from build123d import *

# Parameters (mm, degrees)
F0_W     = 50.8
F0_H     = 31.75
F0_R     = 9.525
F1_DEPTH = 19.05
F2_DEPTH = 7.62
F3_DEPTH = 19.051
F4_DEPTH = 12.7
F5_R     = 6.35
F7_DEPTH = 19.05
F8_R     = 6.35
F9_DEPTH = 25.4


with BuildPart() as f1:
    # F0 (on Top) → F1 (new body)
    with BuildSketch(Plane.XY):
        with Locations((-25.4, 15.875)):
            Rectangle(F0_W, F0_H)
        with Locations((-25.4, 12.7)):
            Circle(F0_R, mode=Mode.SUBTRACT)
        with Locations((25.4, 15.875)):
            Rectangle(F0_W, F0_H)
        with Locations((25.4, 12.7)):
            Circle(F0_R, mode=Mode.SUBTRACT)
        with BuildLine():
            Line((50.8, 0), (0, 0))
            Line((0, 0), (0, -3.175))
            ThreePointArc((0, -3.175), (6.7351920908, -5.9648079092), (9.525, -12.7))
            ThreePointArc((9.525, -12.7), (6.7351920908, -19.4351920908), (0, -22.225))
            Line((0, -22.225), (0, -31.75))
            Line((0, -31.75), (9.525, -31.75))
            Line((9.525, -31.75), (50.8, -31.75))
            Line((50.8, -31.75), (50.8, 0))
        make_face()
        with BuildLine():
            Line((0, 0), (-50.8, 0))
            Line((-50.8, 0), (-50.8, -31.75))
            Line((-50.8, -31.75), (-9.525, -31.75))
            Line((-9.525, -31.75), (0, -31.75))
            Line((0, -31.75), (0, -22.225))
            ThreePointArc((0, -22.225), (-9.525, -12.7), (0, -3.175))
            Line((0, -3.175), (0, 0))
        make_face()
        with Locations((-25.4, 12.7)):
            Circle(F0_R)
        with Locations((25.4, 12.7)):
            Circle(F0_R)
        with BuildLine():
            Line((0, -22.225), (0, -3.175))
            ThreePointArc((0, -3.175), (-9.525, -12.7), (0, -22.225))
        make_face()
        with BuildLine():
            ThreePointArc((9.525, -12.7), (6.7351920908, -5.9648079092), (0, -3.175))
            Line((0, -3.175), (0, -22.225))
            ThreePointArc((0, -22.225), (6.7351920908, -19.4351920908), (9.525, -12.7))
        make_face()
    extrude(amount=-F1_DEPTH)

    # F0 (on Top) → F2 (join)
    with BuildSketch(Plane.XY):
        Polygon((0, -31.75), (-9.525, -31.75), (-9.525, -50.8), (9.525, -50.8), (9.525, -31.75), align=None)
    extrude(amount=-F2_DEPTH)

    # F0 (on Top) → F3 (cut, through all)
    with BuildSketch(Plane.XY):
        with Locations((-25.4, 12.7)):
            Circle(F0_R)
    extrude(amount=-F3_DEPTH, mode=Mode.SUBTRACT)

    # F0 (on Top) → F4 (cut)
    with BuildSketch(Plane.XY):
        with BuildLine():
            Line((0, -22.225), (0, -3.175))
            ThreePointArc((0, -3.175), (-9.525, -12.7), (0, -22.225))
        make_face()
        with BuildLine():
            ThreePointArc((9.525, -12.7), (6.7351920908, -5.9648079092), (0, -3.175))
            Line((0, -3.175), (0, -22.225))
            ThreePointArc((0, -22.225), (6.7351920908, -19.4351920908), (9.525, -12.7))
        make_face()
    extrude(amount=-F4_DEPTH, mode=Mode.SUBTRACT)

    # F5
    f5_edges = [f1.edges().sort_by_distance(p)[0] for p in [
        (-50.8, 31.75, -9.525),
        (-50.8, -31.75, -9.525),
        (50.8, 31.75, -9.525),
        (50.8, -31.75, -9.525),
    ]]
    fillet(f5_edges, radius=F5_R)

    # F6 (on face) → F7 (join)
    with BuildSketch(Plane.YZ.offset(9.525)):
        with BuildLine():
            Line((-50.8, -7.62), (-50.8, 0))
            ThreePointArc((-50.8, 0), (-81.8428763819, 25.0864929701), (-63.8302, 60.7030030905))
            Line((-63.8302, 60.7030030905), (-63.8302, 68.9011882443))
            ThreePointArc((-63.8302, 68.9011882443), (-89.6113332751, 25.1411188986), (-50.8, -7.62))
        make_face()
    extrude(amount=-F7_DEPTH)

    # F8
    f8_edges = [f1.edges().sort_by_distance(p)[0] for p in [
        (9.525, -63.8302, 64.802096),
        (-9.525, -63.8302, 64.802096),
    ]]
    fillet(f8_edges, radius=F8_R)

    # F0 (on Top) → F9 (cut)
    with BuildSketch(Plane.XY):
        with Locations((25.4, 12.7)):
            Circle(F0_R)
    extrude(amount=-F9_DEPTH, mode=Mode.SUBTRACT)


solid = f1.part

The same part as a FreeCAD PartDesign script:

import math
import FreeCAD as App
import Part
import Sketcher

V = App.Vector
Q = App.Units.Quantity


def edges_at(feature, points):
    """Names of the edges that pass closest to the given points."""
    edges = feature.Shape.Edges
    near = lambda p: min(range(len(edges)), key=lambda i: edges[i].distToShape(Part.Vertex(*p))[0])
    return sorted({f"Edge{near(p) + 1}" for p in points})

doc = App.newDocument("Part")
body = doc.addObject("PartDesign::Body", "Body")

# Sketch on XY plane
sketch1 = body.newObject("Sketcher::SketchObject", "Sketch")
sketch1.AttachmentSupport = (doc.getObject("XY_Plane"), [""])
sketch1.MapMode = "FlatFace"
sketch1.addGeometry([
    Part.LineSegment(V(-50.8, 31.75, 0), V(-50.8, -31.75, 0)),
    Part.LineSegment(V(-50.8, -31.75, 0), V(50.8, -31.75, 0)),
    Part.LineSegment(V(50.8, -31.75, 0), V(50.8, 31.75, 0)),
    Part.LineSegment(V(50.8, 31.75, 0), V(-50.8, 31.75, 0)),
], False)
sketch1.addConstraint([
    Sketcher.Constraint("Coincident", 0, 2, 1, 1),
    Sketcher.Constraint("Coincident", 1, 2, 2, 1),
    Sketcher.Constraint("Coincident", 2, 2, 3, 1),
    Sketcher.Constraint("Coincident", 3, 2, 0, 1),
    Sketcher.Constraint("Vertical", 0),
    Sketcher.Constraint("Horizontal", 1),
    Sketcher.Constraint("Vertical", 2),
    Sketcher.Constraint("Horizontal", 3),
    Sketcher.Constraint("Symmetric", 0, 2, 2, 2, -1, 1),
    Sketcher.Constraint("DistanceX", 1, 1, 1, 2, Q("4 in")),
    Sketcher.Constraint("DistanceY", 0, 2, 0, 1, Q("2.5 in")),
])
pad1 = body.newObject("PartDesign::Pad", "Pad")
pad1.Profile = sketch1
pad1.Length = Q("0.75 in")
pad1.Reversed = True

# Sketch on XY plane
sketch2 = body.newObject("Sketcher::SketchObject", "Sketch001")
sketch2.AttachmentSupport = (doc.getObject("XY_Plane"), [""])
sketch2.MapMode = "FlatFace"
sketch2.addGeometry([
    Part.LineSegment(V(-9.525, -31.75, 0), V(-9.525, -50.8, 0)),
    Part.LineSegment(V(-9.525, -50.8, 0), V(9.525, -50.8, 0)),
    Part.LineSegment(V(9.525, -50.8, 0), V(9.525, -31.75, 0)),
    Part.LineSegment(V(9.525, -31.75, 0), V(-9.525, -31.75, 0)),
], False)
sketch2.addConstraint([
    Sketcher.Constraint("Coincident", 0, 2, 1, 1),
    Sketcher.Constraint("Coincident", 1, 2, 2, 1),
    Sketcher.Constraint("Coincident", 2, 2, 3, 1),
    Sketcher.Constraint("Coincident", 3, 2, 0, 1),
    Sketcher.Constraint("Vertical", 0),
    Sketcher.Constraint("Horizontal", 1),
    Sketcher.Constraint("Vertical", 2),
    Sketcher.Constraint("Horizontal", 3),
    Sketcher.Constraint("Equal", 3, 0),
    Sketcher.Constraint("DistanceY", 0, 2, -1, 1, Q("2 in")),
    Sketcher.Constraint("DistanceX", 1, 1, 1, 2, Q("0.75 in")),
    Sketcher.Constraint("DistanceX", 0, 2, -1, 1, Q("0.375 in")),
])
pad2 = body.newObject("PartDesign::Pad", "Pad001")
pad2.Profile = sketch2
pad2.Length = Q("0.3 in")
pad2.Reversed = True

# Sketch on XY plane
sketch3 = body.newObject("Sketcher::SketchObject", "Sketch002")
sketch3.AttachmentSupport = (doc.getObject("XY_Plane"), [""])
sketch3.MapMode = "FlatFace"
sketch3.addGeometry(Part.Circle(V(-25.4, 12.7, 0), V(0, 0, 1), 9.525), False)
sketch3.addConstraint([
    Sketcher.Constraint("Diameter", 0, Q("0.75 in")),
    Sketcher.Constraint("DistanceX", 0, 3, -1, 1, Q("1 in")),
    Sketcher.Constraint("DistanceY", -1, 1, 0, 3, Q("0.5 in")),
])
pocket1 = body.newObject("PartDesign::Pocket", "Pocket")
pocket1.Profile = sketch3
pocket1.Type = "ThroughAll"

# Sketch on XY plane
sketch4 = body.newObject("Sketcher::SketchObject", "Sketch003")
sketch4.AttachmentSupport = (doc.getObject("XY_Plane"), [""])
sketch4.MapMode = "FlatFace"
sketch4.addGeometry(Part.Circle(V(0, -12.7, 0), V(0, 0, 1), 9.525), False)
sketch4.addConstraint([
    Sketcher.Constraint("PointOnObject", 0, 3, -2),
    Sketcher.Constraint("Diameter", 0, Q("0.75 in")),
    Sketcher.Constraint("DistanceY", 0, 3, -1, 1, Q("0.5 in")),
])
pocket2 = body.newObject("PartDesign::Pocket", "Pocket001")
pocket2.Profile = sketch4
pocket2.Length = Q("0.5 in")
doc.recompute()

fillet = body.newObject("PartDesign::Fillet", "Fillet")
fillet.Base = (pocket2, edges_at(pocket2, [
    (-50.8, 31.75, -9.525),
    (-50.8, -31.75, -9.525),
    (50.8, 31.75, -9.525),
    (50.8, -31.75, -9.525),
]))
fillet.Radius = Q("0.25 in")

# Sketch on YZ plane
sketch5 = body.newObject("Sketcher::SketchObject", "Sketch004")
sketch5.AttachmentSupport = (doc.getObject("YZ_Plane"), [""])
sketch5.MapMode = "FlatFace"
sketch5.AttachmentOffset = App.Placement(V(0, 0, 0.375 * 25.4), App.Rotation())
sketch5.addGeometry([
    Part.LineSegment(V(-50.8, -7.62, 0), V(-50.8, 0, 0)),
    Part.ArcOfCircle(Part.Circle(V(-50.8, 31.75, 0), V(0, 0, 1), 31.75), math.radians(114.229965), math.radians(270)),
    Part.LineSegment(V(-63.8302, 60.703003, 0), V(-63.8302, 68.901188, 0)),
    Part.ArcOfCircle(Part.Circle(V(-50.8, 31.75, 0), V(0, 0, 1), 39.37), math.radians(109.327524), math.radians(270)),
], False)
sketch5.addConstraint([
    Sketcher.Constraint("Coincident", 0, 2, 1, 2),
    Sketcher.Constraint("Coincident", 1, 1, 2, 1),
    Sketcher.Constraint("Coincident", 2, 2, 3, 1),
    Sketcher.Constraint("Coincident", 3, 2, 0, 1),
    Sketcher.Constraint("Vertical", 0),
    Sketcher.Constraint("Vertical", 2),
    Sketcher.Constraint("Coincident", 3, 3, 1, 3),
    Sketcher.Constraint("PointOnObject", 0, 2, -1),
    Sketcher.Constraint("Vertical", 3, 3, 0, 2),
    Sketcher.Constraint("Radius", 1, Q("1.25 in")),
    Sketcher.Constraint("Radius", 3, Q("1.55 in")),
    Sketcher.Constraint("DistanceX", 1, 3, -1, 1, Q("2 in")),
    Sketcher.Constraint("DistanceX", 1, 1, -1, 1, Q("2.513 in")),
])
pad3 = body.newObject("PartDesign::Pad", "Pad002")
pad3.Profile = sketch5
pad3.Length = Q("0.75 in")
pad3.Reversed = True
doc.recompute()

fillet2 = body.newObject("PartDesign::Fillet", "Fillet001")
fillet2.Base = (pad3, edges_at(pad3, [(9.525, -63.83, 64.802), (-9.525, -63.83, 64.802)]))
fillet2.Radius = Q("0.25 in")

# Sketch on XY plane
sketch6 = body.newObject("Sketcher::SketchObject", "Sketch005")
sketch6.AttachmentSupport = (doc.getObject("XY_Plane"), [""])
sketch6.MapMode = "FlatFace"
sketch6.addGeometry(Part.Circle(V(25.4, 12.7, 0), V(0, 0, 1), 9.525), False)
sketch6.addConstraint([
    Sketcher.Constraint("Diameter", 0, Q("0.75 in")),
    Sketcher.Constraint("DistanceX", -1, 1, 0, 3, Q("1 in")),
    Sketcher.Constraint("DistanceY", -1, 1, 0, 3, Q("0.5 in")),
])
pocket3 = body.newObject("PartDesign::Pocket", "Pocket002")
pocket3.Profile = sketch6
pocket3.Length = Q("1 in")

doc.recompute()
